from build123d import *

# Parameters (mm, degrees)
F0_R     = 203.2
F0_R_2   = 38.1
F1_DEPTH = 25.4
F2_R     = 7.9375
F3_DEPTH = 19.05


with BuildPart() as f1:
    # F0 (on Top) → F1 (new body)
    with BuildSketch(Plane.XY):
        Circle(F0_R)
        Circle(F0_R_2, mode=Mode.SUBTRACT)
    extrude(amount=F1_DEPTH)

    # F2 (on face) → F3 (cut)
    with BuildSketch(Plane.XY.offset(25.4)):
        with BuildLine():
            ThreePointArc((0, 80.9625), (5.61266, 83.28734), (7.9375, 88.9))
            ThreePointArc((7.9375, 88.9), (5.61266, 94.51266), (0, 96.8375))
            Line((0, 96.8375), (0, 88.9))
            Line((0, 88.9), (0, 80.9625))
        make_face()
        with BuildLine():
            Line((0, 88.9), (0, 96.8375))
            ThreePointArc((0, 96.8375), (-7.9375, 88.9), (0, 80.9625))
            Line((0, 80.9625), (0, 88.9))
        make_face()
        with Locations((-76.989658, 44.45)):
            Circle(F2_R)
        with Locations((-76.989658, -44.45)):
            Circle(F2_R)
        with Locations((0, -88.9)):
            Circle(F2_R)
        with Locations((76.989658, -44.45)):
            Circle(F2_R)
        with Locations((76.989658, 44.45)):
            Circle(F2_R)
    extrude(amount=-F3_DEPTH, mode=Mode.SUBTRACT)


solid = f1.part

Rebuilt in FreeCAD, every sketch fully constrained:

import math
import FreeCAD as App
import Part
import Sketcher
from FreeCAD import Vector
Q = App.Units.Quantity

doc = App.newDocument("Part")
body = doc.addObject("PartDesign::Body", "Body")

# Sketch on XY plane
sketch1 = doc.addObject("Sketcher::SketchObject", "Sketch")
body.addObject(sketch1)
sketch1.AttachmentSupport = (doc.XY_Plane, [""])
sketch1.MapMode = "FlatFace"
sketch1.addGeometry([
    Part.Circle(Vector(0, 0, 0), Vector(0, 0, 1), 203),
    Part.Circle(Vector(0, 0, 0), Vector(0, 0, 1), 38),
], False)
sketch1.addConstraint([
    Sketcher.Constraint("Coincident", 0, 3, -1, 1),
    Sketcher.Constraint("Coincident", 1, 3, -1, 1),
    Sketcher.Constraint("Diameter", 0, Q("16 in")),
    Sketcher.Constraint("Diameter", 1, Q("3 in")),
])
pad1 = doc.addObject("PartDesign::Pad", "Pad")
body.addObject(pad1)
pad1.Profile = sketch1
pad1.Length = Q("1 in")

# Sketch on XY plane
sketch2 = doc.addObject("Sketcher::SketchObject", "Sketch001")
body.addObject(sketch2)
sketch2.AttachmentSupport = (doc.XY_Plane, [""])
sketch2.MapMode = "FlatFace"
sketch2.AttachmentOffset = App.Placement(Vector(0, 0, 1 * 25.4), App.Rotation())
sketch2.addGeometry([
    Part.ArcOfCircle(Part.Circle(Vector(0, 89, 0), Vector(0, 0, 1), 8), math.radians(-90), math.radians(0)),  # 0
    Part.ArcOfCircle(Part.Circle(Vector(0, 89, 0), Vector(0, 0, 1), 8), math.radians(0), math.radians(90)),  # 1
    Part.ArcOfCircle(Part.Circle(Vector(0, 89, 0), Vector(0, 0, 1), 8), math.radians(90), math.radians(270)),  # 2
    Part.Circle(Vector(-77, 44, 0), Vector(0, 0, 1), 8),  # 3
    Part.Circle(Vector(-77, -44, 0), Vector(0, 0, 1), 8),  # 4
    Part.Circle(Vector(0, -89, 0), Vector(0, 0, 1), 8),  # 5
    Part.Circle(Vector(77, -44, 0), Vector(0, 0, 1), 8),  # 6
    Part.Circle(Vector(77, 44, 0), Vector(0, 0, 1), 8),  # 7
], False)
sketch2.addConstraint([
    Sketcher.Constraint("Tangent", 0, 2, 1, 1),
    Sketcher.Constraint("Tangent", 1, 2, 2, 1),
    Sketcher.Constraint("Tangent", 2, 2, 0, 1),
    Sketcher.Constraint("Equal", 2, 3),
    Sketcher.Constraint("Equal", 3, 4),
    Sketcher.Constraint("Equal", 4, 5),
    Sketcher.Constraint("Equal", 5, 6),
    Sketcher.Constraint("Equal", 6, 7),
    Sketcher.Constraint("Symmetric", 0, 3, 5, 3, -1, 1),
    Sketcher.Constraint("Symmetric", 3, 3, 6, 3, -1, 1),
    Sketcher.Constraint("Symmetric", 4, 3, 7, 3, -1, 1),
    Sketcher.Constraint("Symmetric", 4, 3, 6, 3, -2),
    Sketcher.Constraint("PointOnObject", 0, 3, -2),
    Sketcher.Constraint("PointOnObject", 1, 2, -2),
    Sketcher.Constraint("PointOnObject", 2, 2, -2),
    Sketcher.Constraint("Horizontal", 2, 3, 0, 2),
    Sketcher.Constraint("Diameter", 3, Q("0.625 in")),
    Sketcher.Constraint("DistanceY", 5, 3, 1, 3, Q("7 in")),
    Sketcher.Constraint("DistanceY", 4, 3, 3, 3, Q("3.5 in")),
    Sketcher.Constraint("DistanceX", 3, 3, -1, 1, 76.989658),
])
pocket1 = doc.addObject("PartDesign::Pocket", "Pocket")
body.addObject(pocket1)
pocket1.Profile = sketch2
pocket1.Length = Q("0.75 in")

doc.recompute()
